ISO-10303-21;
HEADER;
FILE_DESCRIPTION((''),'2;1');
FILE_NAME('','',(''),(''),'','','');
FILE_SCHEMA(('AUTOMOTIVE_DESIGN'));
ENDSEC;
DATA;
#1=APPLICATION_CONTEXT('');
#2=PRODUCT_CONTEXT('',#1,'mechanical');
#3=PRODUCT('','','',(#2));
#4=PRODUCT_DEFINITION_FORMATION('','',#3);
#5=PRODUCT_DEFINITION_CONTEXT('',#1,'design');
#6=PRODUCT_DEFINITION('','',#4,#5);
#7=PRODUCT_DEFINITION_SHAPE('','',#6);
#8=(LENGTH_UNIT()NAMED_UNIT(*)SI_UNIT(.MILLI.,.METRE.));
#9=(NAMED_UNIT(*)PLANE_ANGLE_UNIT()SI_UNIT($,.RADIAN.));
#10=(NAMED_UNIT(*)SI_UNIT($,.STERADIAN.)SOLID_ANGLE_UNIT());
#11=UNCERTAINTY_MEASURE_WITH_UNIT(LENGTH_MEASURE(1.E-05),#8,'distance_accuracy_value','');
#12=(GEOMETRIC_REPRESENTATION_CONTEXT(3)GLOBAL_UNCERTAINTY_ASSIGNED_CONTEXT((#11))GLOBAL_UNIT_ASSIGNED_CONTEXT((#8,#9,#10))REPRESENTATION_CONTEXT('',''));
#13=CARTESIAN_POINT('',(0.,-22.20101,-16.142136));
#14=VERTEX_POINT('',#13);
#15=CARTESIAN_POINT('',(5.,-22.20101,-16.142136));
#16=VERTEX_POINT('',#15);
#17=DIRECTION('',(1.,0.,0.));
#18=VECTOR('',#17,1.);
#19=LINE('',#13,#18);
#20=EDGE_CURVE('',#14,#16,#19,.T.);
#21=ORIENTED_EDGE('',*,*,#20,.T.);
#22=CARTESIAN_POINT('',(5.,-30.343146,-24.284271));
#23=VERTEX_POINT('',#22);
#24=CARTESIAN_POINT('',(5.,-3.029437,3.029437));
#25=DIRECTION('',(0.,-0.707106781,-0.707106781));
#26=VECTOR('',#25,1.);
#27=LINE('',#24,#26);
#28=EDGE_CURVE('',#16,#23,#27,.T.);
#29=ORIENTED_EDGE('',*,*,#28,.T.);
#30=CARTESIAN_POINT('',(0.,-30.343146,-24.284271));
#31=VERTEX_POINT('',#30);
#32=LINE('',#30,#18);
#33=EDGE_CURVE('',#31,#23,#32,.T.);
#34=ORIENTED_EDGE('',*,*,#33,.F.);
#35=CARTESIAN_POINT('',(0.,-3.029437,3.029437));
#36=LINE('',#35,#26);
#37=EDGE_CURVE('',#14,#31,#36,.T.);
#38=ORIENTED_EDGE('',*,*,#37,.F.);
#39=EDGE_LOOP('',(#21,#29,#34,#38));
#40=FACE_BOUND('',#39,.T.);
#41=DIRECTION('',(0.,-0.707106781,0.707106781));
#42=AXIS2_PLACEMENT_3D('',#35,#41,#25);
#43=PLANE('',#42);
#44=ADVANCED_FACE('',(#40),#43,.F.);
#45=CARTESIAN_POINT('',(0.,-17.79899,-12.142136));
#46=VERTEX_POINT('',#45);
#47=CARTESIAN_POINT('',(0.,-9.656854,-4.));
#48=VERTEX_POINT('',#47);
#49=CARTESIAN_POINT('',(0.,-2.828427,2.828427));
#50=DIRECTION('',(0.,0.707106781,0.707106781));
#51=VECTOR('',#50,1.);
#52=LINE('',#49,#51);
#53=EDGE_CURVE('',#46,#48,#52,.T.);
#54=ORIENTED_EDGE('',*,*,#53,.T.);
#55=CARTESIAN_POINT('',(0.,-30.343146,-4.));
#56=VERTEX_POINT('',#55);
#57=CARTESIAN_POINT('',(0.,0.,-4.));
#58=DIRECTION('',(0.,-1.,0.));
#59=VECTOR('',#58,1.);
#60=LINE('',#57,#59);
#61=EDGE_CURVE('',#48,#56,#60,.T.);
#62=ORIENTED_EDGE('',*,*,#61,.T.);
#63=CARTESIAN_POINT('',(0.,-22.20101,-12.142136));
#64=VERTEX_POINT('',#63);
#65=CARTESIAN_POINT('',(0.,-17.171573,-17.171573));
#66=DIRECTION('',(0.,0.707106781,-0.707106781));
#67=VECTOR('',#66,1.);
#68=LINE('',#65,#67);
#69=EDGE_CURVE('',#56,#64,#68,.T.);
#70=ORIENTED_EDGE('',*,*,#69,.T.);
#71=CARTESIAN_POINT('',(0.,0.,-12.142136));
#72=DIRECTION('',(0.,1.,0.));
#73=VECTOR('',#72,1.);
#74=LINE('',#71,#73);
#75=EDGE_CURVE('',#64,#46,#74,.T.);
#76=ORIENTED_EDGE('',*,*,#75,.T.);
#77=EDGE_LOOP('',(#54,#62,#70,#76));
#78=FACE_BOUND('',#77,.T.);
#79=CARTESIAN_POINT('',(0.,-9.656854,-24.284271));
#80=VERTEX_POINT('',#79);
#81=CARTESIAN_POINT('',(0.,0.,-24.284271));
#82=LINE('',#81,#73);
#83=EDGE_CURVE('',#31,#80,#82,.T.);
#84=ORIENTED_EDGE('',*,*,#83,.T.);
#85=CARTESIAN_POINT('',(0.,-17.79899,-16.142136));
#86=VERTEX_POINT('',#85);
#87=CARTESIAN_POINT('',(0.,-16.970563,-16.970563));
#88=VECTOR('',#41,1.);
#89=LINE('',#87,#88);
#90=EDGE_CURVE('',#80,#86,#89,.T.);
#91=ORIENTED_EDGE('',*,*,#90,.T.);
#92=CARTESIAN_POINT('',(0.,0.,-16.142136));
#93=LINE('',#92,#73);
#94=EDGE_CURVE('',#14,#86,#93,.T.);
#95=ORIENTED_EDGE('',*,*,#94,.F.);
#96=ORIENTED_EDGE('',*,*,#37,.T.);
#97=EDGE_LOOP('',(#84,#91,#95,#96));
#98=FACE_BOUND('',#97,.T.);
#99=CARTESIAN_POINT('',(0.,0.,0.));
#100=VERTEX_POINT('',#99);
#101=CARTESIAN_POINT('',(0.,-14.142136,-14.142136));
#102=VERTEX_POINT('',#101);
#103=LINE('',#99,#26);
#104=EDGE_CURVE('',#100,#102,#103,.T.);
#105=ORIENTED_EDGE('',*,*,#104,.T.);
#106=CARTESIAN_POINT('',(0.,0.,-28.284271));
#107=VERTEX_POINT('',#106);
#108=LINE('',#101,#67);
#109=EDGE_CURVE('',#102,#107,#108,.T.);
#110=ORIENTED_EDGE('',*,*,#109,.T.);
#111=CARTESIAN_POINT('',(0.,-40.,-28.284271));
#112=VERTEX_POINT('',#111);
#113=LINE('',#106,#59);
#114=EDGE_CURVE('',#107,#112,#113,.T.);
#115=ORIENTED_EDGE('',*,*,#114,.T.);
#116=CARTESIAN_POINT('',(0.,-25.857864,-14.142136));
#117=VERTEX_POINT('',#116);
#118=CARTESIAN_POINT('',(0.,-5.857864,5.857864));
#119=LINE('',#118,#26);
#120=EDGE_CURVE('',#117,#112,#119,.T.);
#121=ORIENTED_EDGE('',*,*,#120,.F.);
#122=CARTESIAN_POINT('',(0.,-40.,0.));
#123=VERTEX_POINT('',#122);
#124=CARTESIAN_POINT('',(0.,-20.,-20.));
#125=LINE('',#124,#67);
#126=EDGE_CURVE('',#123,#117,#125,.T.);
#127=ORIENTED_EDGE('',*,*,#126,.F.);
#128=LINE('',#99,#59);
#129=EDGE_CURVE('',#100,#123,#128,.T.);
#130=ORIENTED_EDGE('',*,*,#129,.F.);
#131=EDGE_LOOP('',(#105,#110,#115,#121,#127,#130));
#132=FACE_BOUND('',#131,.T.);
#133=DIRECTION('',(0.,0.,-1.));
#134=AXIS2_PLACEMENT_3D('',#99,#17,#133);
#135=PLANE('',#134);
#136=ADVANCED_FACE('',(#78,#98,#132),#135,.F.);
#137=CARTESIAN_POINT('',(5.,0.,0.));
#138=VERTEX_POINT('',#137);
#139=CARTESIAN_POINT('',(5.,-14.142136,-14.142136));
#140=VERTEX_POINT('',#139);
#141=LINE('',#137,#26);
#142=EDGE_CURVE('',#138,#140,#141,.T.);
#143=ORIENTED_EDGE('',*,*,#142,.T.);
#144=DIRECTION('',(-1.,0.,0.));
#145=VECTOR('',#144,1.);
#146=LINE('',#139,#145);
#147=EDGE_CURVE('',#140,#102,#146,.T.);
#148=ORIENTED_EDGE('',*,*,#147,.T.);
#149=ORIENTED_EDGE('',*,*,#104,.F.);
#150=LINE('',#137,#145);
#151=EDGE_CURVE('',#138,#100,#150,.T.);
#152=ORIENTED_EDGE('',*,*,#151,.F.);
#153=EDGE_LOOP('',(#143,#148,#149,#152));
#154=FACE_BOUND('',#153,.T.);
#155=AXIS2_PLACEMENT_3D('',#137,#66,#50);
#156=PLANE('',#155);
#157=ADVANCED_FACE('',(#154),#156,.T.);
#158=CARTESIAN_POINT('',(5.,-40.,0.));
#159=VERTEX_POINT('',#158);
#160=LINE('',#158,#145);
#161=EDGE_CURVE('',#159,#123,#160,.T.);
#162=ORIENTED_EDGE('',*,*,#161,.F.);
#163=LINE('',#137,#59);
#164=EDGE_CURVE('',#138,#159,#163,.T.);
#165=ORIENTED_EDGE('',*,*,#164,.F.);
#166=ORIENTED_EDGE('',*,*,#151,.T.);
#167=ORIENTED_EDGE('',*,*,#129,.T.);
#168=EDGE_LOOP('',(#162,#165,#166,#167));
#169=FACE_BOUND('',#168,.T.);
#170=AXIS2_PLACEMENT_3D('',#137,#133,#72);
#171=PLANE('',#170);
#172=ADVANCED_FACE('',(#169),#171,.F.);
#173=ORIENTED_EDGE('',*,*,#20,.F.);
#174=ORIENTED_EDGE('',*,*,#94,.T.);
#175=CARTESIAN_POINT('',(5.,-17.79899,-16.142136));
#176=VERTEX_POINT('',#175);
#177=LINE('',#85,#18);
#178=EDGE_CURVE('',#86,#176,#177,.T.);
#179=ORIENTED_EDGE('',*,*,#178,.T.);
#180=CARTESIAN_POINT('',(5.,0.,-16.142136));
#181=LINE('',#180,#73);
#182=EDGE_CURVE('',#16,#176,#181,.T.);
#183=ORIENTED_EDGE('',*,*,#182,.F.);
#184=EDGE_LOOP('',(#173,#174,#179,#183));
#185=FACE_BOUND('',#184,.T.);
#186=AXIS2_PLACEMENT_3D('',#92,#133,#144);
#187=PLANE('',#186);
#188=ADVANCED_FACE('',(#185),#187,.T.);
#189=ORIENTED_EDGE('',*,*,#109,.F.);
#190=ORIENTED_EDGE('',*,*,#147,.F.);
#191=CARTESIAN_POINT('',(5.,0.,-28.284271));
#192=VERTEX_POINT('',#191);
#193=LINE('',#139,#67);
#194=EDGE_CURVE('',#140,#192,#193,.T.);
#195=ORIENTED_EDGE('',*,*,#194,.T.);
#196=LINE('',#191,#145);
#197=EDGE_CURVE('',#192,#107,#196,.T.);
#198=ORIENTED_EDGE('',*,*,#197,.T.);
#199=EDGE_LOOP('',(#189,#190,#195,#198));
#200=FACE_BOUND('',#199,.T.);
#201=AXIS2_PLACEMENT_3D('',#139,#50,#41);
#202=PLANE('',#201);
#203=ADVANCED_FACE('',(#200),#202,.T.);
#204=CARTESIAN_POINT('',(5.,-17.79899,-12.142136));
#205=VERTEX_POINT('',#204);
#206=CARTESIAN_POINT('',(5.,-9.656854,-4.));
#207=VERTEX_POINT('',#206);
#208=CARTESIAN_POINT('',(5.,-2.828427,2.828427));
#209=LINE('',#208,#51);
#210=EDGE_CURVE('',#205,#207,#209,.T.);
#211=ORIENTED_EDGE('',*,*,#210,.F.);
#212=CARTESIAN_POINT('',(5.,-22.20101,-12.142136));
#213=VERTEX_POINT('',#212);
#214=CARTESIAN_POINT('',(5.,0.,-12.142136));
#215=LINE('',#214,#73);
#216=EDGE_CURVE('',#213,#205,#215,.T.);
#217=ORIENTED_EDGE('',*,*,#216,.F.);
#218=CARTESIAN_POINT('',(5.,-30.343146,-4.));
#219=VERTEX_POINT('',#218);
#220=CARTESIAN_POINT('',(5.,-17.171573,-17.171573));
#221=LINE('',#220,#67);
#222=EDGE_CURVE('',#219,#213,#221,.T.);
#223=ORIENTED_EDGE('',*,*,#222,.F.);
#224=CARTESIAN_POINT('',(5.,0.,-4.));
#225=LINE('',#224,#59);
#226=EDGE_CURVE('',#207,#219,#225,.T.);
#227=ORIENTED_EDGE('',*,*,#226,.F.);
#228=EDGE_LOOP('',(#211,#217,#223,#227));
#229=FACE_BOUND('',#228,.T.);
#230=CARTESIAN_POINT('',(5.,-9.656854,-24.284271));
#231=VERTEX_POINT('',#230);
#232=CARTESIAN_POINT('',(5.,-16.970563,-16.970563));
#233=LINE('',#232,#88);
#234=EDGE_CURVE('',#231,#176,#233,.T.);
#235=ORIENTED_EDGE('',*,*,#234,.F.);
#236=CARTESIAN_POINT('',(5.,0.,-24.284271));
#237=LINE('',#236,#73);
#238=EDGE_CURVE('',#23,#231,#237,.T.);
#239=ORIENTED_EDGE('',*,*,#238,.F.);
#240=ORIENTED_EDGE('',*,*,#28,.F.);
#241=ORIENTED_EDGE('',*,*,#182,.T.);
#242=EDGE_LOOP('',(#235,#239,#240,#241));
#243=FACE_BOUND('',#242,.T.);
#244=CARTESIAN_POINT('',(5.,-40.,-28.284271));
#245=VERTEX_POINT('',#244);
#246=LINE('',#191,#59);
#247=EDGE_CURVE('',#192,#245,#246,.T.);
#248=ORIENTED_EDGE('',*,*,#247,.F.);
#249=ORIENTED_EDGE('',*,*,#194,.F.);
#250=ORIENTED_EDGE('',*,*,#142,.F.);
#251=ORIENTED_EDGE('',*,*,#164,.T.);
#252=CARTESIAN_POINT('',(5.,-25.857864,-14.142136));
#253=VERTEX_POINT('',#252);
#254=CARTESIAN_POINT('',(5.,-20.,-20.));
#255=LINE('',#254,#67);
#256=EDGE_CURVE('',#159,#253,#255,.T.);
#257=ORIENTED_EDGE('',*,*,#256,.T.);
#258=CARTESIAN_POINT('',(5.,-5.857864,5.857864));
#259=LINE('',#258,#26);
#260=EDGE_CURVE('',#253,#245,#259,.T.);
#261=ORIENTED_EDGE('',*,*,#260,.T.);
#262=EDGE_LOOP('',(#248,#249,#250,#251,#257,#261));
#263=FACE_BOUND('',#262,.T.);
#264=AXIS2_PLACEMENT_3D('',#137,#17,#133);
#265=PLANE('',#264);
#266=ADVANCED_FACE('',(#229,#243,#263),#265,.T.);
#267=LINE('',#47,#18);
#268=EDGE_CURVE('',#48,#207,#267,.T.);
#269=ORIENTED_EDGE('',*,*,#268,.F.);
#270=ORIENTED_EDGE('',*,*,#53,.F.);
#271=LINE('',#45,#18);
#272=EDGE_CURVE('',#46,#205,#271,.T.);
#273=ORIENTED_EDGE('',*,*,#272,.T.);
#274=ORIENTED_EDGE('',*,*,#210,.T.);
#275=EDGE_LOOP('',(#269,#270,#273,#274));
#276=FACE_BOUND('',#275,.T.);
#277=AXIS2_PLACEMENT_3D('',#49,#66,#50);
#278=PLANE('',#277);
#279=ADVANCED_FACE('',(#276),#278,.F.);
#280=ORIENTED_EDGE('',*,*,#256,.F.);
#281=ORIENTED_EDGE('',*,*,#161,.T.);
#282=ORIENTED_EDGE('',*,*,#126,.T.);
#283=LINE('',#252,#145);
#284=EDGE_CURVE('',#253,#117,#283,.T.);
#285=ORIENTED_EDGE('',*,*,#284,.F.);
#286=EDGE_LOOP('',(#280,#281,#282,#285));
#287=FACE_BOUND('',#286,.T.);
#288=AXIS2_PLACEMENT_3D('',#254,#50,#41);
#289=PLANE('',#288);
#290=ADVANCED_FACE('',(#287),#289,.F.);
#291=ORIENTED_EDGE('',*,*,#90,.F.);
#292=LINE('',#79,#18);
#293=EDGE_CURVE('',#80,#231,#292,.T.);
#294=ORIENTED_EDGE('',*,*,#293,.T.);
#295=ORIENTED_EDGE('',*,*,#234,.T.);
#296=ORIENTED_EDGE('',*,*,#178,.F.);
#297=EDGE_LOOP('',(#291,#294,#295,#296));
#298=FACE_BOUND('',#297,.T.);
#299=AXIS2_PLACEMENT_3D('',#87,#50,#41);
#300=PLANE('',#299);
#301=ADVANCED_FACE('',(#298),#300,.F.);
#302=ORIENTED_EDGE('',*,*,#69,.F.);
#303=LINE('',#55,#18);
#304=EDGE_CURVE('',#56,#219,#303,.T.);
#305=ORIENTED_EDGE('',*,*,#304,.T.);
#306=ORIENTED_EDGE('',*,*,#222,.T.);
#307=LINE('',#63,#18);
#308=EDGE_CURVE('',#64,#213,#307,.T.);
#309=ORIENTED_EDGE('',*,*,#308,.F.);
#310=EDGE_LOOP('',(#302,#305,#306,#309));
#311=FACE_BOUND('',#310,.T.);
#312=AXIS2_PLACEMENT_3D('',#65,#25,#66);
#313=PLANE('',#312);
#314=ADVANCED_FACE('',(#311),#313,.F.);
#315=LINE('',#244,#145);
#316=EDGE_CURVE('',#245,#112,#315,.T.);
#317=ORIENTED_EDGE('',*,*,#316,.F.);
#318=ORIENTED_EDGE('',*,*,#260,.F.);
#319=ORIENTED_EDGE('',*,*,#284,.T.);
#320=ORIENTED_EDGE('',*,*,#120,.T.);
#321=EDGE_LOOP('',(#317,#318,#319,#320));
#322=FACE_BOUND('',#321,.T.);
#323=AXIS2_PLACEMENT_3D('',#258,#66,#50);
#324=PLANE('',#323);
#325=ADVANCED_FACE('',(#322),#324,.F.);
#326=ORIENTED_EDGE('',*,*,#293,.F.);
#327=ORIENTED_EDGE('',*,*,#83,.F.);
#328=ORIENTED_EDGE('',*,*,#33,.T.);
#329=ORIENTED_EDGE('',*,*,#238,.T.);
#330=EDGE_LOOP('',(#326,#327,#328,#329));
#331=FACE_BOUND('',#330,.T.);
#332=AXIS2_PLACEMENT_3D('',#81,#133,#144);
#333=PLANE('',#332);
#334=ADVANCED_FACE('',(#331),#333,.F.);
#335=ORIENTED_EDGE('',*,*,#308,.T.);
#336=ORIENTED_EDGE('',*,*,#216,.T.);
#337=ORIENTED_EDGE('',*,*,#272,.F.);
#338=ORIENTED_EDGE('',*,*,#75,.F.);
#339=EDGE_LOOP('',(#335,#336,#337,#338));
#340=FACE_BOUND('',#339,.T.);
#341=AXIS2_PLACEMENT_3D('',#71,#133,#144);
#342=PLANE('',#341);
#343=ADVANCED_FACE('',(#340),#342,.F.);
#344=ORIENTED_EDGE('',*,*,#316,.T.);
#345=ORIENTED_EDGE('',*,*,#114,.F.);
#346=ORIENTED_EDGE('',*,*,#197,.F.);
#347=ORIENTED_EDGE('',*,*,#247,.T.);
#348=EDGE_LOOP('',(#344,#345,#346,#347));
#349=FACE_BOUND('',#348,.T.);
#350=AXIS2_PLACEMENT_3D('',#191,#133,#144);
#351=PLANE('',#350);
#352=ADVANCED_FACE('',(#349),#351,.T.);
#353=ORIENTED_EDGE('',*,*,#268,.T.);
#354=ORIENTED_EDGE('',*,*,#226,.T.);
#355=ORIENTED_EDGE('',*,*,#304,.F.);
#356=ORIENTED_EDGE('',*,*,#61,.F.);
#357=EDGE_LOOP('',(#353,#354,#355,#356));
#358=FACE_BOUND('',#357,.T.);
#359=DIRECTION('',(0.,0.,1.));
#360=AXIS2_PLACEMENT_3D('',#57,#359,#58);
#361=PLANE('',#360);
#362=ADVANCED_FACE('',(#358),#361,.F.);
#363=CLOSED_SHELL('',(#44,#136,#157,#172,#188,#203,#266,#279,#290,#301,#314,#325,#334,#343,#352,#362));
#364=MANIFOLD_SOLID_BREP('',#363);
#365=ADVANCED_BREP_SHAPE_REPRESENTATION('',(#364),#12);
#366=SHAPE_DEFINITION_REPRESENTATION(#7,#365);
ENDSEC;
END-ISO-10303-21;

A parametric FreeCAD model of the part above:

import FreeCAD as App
import Part
import Sketcher
from FreeCAD import Vector
Q = App.Units.Quantity


def add_polygon(sketch, points):
    """Adds a closed chain of lines whose ends are joined by coincident constraints."""
    first, n = sketch.GeometryCount, len(points)
    for a, b in zip(points, points[1:] + points[:1]):
        sketch.addGeometry(Part.LineSegment(App.Vector(*a, 0), App.Vector(*b, 0)), False)
    for i in range(n):
        sketch.addConstraint(Sketcher.Constraint("Coincident", first + i, 2, first + (i + 1) % n, 1))

doc = App.newDocument("Part")
params = doc.addObject("Spreadsheet::Sheet", "Params")
for row, (alias, value) in enumerate([
    ("sketch1_width", "40 mm"),
    ("sketch1_length", "20 mm"),
    ("pad1_length", "5 mm"),
], start=1):
    params.set(f"A{row}", alias)
    params.set(f"B{row}", "=" + value)
    params.setAlias(f"B{row}", alias)

body = doc.addObject("PartDesign::Body", "Body")

# Sketch on YZ plane
sketch1 = doc.addObject("Sketcher::SketchObject", "Sketch")
body.addObject(sketch1)
sketch1.AttachmentSupport = (doc.YZ_Plane, [""])
sketch1.MapMode = "FlatFace"
add_polygon(sketch1, [(0, 0), (-40, 0), (-25.857864, -14.142136), (-40, -28.284271), (0, -28.284271), (-14.142136, -14.142136)])  # lines 0-5
sketch1.addConstraint(Sketcher.Constraint("Horizontal", 0))
sketch1.addConstraint(Sketcher.Constraint("Horizontal", 3))
sketch1.addConstraint(Sketcher.Constraint("Coincident", 5, 2, -1, 1))
sketch1.addConstraint(Sketcher.Constraint("PointOnObject", 3, 2, -2))
sketch1.addConstraint(Sketcher.Constraint("Perpendicular", 1, 2))
sketch1.addConstraint(Sketcher.Constraint("Perpendicular", 2, 4))
sketch1.addConstraint(Sketcher.Constraint("Perpendicular", 4, 5))
sketch1.addConstraint(Sketcher.Constraint("Horizontal", 1, 2, 4, 2))
sketch1.addConstraint(Sketcher.Constraint("Vertical", 0, 2, 2, 2))
sketch1.addConstraint(Sketcher.Constraint("DistanceX", 0, 2, 0, 1, Q("40 mm")))
sketch1.addConstraint(Sketcher.Constraint("Distance", 1, Q("20 mm")))
sketch1.setExpression("Constraints[15]", "Params.sketch1_width")
sketch1.setExpression("Constraints[16]", "Params.sketch1_length")
pad1 = doc.addObject("PartDesign::Pad", "Pad")
body.addObject(pad1)
pad1.Profile = sketch1
pad1.setExpression("Length", "Params.pad1_length")

# Sketch on YZ plane
sketch2 = doc.addObject("Sketcher::SketchObject", "Sketch001")
body.addObject(sketch2)
sketch2.AttachmentSupport = (doc.YZ_Plane, [""])
sketch2.MapMode = "FlatFace"
sketch2.AttachmentOffset = App.Placement(Vector(0, 0, 5), App.Rotation())
add_polygon(sketch2, [(-30.343146, -4), (-22.20101, -12.142136), (-17.79899, -12.142136), (-9.656854, -4)])  # lines 0-3
add_polygon(sketch2, [(-17.79899, -16.142136), (-22.20101, -16.142136), (-30.343146, -24.284271), (-9.656854, -24.284271)])  # lines 4-7
sketch2.addConstraint(Sketcher.Constraint("Horizontal", 1))
sketch2.addConstraint(Sketcher.Constraint("Horizontal", 3))
sketch2.addConstraint(Sketcher.Constraint("Horizontal", 4))
sketch2.addConstraint(Sketcher.Constraint("Horizontal", 6))
sketch2.addConstraint(Sketcher.Constraint("Perpendicular", 0, 2))
sketch2.addConstraint(Sketcher.Constraint("Parallel", 2, 5))
sketch2.addConstraint(Sketcher.Constraint("Perpendicular", 5, 7))
sketch2.addConstraint(Sketcher.Constraint("Vertical", 0, 2, 4, 2))
sketch2.addConstraint(Sketcher.Constraint("Vertical", 3, 2, 5, 2))
sketch2.addConstraint(Sketcher.Constraint("Vertical", 2, 2, 6, 2))
sketch2.addConstraint(Sketcher.Constraint("Vertical", 1, 2, 7, 2))
sketch2.addConstraint(Sketcher.Constraint("DistanceY", 2, 2, -1, 1, Q("4 mm")))
sketch2.addConstraint(Sketcher.Constraint("DistanceY", 4, 2, 0, 2, Q("4 mm")))
sketch2.addConstraint(Sketcher.Constraint("DistanceX", 1, 1, 1, 2, Q("4.40202 mm")))
sketch2.addConstraint(Sketcher.Constraint("DistanceX", 3, 2, 3, 1, Q("20.686292 mm")))
sketch2.addConstraint(Sketcher.Constraint("DistanceX", 0, 2, -1, 1, Q("22.20101 mm")))
pocket1 = doc.addObject("PartDesign::Pocket", "Pocket")
body.addObject(pocket1)
pocket1.Profile = sketch2
pocket1.Type = "ThroughAll"

doc.recompute()
